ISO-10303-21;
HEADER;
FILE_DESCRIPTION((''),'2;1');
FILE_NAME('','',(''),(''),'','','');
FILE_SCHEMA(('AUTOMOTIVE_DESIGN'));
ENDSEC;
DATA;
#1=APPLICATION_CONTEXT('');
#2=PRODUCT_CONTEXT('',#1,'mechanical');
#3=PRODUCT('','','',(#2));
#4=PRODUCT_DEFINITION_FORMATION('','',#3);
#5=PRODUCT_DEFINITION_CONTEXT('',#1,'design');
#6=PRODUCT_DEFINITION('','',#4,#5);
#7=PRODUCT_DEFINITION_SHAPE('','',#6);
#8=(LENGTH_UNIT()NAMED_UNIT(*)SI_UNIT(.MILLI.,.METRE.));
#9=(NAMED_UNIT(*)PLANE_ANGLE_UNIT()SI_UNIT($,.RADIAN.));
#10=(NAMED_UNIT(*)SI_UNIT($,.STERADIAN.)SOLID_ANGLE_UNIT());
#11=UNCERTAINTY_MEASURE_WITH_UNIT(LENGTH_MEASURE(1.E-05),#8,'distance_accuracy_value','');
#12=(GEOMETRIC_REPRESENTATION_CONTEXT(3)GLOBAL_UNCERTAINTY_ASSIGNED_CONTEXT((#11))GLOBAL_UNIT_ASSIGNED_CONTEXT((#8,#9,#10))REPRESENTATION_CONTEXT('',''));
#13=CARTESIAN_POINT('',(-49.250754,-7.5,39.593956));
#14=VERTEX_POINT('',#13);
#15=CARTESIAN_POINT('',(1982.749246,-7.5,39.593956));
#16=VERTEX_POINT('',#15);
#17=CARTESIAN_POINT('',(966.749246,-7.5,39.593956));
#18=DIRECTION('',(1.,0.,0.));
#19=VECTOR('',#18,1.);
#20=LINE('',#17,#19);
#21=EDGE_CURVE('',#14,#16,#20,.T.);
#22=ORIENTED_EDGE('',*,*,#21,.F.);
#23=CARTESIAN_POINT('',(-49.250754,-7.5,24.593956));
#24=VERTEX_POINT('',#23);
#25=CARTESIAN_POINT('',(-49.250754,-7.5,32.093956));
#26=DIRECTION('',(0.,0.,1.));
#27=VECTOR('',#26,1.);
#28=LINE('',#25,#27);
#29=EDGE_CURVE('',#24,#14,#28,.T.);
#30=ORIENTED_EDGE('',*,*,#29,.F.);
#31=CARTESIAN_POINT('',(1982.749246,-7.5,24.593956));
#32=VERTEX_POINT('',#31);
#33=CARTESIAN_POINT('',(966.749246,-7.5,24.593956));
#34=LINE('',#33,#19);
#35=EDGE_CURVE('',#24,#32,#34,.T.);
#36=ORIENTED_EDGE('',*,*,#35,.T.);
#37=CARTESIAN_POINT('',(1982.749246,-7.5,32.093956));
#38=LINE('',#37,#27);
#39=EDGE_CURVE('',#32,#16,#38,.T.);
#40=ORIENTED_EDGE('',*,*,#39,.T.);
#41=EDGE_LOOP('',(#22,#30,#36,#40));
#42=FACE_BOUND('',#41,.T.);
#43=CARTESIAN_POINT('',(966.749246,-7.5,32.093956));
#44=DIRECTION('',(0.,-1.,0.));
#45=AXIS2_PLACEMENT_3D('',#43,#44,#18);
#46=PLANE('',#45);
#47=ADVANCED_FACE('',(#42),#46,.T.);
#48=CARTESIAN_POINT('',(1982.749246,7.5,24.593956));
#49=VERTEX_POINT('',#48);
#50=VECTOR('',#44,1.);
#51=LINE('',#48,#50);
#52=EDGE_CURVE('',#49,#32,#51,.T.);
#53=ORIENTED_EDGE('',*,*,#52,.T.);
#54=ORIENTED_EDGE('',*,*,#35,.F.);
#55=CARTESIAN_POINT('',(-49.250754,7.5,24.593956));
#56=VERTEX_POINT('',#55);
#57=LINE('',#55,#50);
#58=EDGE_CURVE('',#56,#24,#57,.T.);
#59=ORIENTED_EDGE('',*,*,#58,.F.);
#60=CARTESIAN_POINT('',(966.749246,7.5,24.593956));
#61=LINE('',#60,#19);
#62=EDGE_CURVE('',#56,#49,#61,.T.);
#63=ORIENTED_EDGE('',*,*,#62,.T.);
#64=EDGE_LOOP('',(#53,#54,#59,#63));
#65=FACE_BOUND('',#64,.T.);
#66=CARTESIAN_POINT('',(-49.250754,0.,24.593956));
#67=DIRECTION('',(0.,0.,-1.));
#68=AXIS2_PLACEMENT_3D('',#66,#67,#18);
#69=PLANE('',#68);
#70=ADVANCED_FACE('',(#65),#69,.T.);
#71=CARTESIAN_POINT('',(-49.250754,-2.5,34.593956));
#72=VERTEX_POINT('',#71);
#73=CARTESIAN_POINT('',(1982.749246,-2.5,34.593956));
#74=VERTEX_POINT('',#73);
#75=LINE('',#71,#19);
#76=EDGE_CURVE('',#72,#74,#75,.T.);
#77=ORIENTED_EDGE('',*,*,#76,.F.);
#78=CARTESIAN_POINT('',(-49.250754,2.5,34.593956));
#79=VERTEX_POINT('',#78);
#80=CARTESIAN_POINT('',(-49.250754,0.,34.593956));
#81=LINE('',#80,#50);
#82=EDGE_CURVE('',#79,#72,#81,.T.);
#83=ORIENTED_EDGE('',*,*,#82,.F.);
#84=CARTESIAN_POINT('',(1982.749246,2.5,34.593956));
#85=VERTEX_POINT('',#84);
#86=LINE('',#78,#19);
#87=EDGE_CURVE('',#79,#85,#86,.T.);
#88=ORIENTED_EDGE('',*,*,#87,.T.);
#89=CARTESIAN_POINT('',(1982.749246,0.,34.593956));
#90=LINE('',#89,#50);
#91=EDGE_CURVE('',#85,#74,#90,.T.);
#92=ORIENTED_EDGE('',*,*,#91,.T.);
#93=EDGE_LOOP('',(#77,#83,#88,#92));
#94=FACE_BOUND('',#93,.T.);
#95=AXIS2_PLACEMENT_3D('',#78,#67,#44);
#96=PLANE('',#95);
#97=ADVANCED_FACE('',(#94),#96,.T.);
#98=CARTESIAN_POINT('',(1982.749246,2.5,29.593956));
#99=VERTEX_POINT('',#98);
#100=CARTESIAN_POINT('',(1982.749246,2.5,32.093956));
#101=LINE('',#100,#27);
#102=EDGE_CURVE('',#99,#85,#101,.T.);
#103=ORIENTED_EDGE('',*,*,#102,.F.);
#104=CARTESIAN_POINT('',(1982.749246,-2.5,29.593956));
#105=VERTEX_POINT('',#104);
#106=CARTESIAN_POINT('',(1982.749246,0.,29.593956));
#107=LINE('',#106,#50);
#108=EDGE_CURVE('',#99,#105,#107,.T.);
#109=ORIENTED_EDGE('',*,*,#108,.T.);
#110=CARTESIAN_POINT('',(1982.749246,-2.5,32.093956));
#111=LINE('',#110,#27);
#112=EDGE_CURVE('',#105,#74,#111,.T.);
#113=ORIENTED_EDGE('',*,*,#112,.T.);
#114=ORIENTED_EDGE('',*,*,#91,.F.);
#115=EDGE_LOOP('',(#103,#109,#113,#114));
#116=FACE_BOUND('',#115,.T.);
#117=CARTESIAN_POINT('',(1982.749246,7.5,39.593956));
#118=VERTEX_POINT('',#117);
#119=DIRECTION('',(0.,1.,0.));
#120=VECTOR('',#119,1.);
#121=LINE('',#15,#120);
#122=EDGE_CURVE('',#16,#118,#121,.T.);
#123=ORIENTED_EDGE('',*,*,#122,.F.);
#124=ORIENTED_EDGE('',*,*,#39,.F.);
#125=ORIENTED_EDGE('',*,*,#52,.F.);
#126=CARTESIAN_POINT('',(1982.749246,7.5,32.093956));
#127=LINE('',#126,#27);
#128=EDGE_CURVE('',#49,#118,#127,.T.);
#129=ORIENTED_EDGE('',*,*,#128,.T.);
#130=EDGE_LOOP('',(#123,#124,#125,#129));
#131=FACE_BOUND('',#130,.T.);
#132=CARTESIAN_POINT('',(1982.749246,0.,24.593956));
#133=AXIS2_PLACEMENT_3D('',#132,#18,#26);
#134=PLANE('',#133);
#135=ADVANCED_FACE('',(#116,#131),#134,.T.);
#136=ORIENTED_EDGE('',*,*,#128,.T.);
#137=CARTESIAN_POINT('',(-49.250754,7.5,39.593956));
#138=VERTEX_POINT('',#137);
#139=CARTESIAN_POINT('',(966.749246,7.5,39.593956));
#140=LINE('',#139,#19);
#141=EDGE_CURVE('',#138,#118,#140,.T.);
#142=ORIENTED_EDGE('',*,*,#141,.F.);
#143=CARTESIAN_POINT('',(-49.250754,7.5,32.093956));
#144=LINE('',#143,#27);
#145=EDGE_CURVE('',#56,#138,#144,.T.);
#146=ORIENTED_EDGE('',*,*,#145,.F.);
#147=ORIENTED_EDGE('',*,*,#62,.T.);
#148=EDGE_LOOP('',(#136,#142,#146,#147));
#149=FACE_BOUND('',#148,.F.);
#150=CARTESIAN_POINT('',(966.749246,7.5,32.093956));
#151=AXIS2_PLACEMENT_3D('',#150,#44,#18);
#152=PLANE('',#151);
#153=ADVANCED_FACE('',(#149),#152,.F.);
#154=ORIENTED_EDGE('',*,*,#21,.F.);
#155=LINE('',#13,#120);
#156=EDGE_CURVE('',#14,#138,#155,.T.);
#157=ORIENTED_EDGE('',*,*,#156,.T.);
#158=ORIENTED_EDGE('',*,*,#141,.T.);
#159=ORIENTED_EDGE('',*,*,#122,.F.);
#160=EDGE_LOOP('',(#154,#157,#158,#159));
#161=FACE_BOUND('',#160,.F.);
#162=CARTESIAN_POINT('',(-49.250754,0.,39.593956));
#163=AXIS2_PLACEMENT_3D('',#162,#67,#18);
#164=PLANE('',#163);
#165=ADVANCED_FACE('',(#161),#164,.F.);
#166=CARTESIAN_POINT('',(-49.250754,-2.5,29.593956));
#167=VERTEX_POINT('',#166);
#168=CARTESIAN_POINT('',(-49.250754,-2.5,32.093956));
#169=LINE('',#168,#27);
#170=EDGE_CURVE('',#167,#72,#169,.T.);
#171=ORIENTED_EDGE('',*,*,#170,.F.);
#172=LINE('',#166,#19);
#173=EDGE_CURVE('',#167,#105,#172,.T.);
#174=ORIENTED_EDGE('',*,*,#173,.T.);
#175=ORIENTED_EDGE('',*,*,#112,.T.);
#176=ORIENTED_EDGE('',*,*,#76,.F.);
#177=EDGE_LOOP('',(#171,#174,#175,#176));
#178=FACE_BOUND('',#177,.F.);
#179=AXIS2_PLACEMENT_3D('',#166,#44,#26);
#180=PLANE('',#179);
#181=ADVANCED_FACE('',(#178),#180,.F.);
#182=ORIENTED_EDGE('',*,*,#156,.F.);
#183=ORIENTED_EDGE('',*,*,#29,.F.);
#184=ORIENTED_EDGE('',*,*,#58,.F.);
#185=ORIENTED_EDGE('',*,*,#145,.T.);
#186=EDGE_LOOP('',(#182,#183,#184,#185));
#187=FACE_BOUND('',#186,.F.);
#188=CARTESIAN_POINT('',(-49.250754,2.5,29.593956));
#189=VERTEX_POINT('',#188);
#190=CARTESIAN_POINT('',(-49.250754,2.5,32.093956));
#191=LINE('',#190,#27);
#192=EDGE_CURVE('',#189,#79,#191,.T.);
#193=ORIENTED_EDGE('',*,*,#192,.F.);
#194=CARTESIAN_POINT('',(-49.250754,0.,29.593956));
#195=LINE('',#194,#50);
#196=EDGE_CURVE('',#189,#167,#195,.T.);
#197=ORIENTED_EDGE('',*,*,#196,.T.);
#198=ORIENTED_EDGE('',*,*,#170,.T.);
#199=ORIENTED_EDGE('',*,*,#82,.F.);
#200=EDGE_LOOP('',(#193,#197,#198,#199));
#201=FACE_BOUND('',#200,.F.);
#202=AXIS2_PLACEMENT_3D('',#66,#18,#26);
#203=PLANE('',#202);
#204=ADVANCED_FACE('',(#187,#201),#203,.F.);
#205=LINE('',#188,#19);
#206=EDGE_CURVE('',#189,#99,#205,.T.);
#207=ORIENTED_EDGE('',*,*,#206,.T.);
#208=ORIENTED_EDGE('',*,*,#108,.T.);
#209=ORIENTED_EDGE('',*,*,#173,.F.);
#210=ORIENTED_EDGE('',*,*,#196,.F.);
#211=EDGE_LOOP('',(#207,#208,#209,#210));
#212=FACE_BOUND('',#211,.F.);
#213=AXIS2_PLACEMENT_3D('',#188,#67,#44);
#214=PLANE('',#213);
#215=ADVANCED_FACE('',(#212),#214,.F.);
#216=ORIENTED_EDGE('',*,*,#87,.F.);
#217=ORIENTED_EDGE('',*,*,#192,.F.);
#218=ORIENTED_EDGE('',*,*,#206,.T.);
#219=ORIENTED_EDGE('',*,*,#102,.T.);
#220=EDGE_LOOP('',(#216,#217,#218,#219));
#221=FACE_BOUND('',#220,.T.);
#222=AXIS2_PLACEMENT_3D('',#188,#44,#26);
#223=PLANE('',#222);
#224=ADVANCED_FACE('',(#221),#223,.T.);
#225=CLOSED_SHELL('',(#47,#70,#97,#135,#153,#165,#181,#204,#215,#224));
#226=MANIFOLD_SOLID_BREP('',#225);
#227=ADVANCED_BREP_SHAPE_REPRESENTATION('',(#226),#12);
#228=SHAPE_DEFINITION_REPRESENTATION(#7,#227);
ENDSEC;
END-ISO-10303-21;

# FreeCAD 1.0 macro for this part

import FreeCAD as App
import Part
import Sketcher
from FreeCAD import Vector


def add_polygon(sketch, points):
    """Adds a closed chain of lines whose ends are joined by coincident constraints."""
    first, n = sketch.GeometryCount, len(points)
    for a, b in zip(points, points[1:] + points[:1]):
        sketch.addGeometry(Part.LineSegment(App.Vector(*a, 0), App.Vector(*b, 0)), False)
    for i in range(n):
        sketch.addConstraint(Sketcher.Constraint("Coincident", first + i, 2, first + (i + 1) % n, 1))

doc = App.newDocument("Part")
body = doc.addObject("PartDesign::Body", "Body")

# Sketch on XZ plane
sketch1 = body.newObject("Sketcher::SketchObject", "Sketch")
sketch1.AttachmentSupport = (doc.getObject("XZ_Plane"), [""])
sketch1.MapMode = "FlatFace"
add_polygon(sketch1, [(-49, 40), (-49, 25), (1983, 25), (1983, 40)])  # lines 0-3
sketch1.addConstraint([
    Sketcher.Constraint("Vertical", 0),
    Sketcher.Constraint("Horizontal", 1),
    Sketcher.Constraint("Vertical", 2),
    Sketcher.Constraint("Horizontal", 3),
    Sketcher.Constraint("DistanceX", 1, 1, 1, 2, 2032.0),
    Sketcher.Constraint("DistanceY", 0, 2, 0, 1, 15.0),
    Sketcher.Constraint("DistanceX", 0, 2, -1, 1, 49.250754),
    Sketcher.Constraint("DistanceY", -1, 1, 0, 2, 24.593956),
])
pad1 = body.newObject("PartDesign::Pad", "Pad")
pad1.Profile = sketch1
pad1.Length = 15
pad1.Midplane = True

# Sketch on YZ plane
sketch2 = body.newObject("Sketcher::SketchObject", "Sketch001")
sketch2.AttachmentSupport = (doc.getObject("YZ_Plane"), [""])
sketch2.MapMode = "FlatFace"
sketch2.AttachmentOffset = App.Placement(Vector(0, 0, -49.250754), App.Rotation())
add_polygon(sketch2, [(2, 35), (2, 30), (-2, 30), (-2, 35)])  # lines 0-3
sketch2.addConstraint([
    Sketcher.Constraint("Vertical", 0),
    Sketcher.Constraint("Horizontal", 1),
    Sketcher.Constraint("Vertical", 2),
    Sketcher.Constraint("Horizontal", 3),
    Sketcher.Constraint("Equal", 3, 0),
    Sketcher.Constraint("DistanceX", 1, 2, 1, 1, 5.0),
    Sketcher.Constraint("DistanceX", -1, 1, 0, 2, 2.5),
    Sketcher.Constraint("DistanceY", -1, 1, 0, 2, 29.593956),
])
pocket1 = body.newObject("PartDesign::Pocket", "Pocket")
pocket1.Profile = sketch2
pocket1.Length = 2032
pocket1.Reversed = True

doc.recompute()
